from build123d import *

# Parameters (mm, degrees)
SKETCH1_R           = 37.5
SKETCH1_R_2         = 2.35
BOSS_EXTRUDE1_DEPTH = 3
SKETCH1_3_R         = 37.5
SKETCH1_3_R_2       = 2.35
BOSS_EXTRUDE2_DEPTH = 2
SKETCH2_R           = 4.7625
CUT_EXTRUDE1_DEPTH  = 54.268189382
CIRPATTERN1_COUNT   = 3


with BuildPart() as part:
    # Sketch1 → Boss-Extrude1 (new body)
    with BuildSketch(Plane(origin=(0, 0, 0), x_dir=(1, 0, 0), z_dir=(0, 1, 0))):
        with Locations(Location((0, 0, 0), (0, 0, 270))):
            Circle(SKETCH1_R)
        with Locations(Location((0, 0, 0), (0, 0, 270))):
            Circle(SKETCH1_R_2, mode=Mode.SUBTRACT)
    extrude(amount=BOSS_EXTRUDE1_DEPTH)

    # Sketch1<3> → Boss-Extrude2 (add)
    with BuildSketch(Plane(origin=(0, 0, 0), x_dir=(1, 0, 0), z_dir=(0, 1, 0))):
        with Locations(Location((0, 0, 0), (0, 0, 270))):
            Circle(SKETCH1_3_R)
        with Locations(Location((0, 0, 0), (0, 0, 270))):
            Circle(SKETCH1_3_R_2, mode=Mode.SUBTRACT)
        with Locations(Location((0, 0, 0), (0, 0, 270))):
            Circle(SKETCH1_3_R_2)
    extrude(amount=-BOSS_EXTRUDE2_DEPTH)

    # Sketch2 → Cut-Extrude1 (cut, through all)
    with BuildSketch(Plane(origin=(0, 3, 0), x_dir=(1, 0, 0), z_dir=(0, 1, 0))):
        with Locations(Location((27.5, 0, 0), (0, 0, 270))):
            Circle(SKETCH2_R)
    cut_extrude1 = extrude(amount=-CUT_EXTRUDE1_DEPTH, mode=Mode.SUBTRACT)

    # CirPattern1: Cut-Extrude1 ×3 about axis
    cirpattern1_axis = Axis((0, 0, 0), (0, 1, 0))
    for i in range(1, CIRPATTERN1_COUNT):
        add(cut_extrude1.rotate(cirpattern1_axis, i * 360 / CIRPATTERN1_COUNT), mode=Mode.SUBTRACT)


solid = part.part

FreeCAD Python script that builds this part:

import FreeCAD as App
import Part
import Sketcher
Q = App.Units.Quantity

doc = App.newDocument("Part")
body = doc.addObject("PartDesign::Body", "Body")

sketch1 = doc.addObject("Sketcher::SketchObject", "Sketch")
body.addObject(sketch1)
sketch1.AttachmentSupport = (doc.XZ_Plane, [""])
sketch1.MapMode = "FlatFace"
sketch1.addGeometry(Part.Circle(App.Vector(0, 0, 0), App.Vector(0, 0, 1), 37.5), False)
sketch1.addGeometry(Part.Circle(App.Vector(0, 0, 0), App.Vector(0, 0, 1), 2.4), False)
sketch1.addConstraint(Sketcher.Constraint("Coincident", 0, 3, -1, 1))
sketch1.addConstraint(Sketcher.Constraint("Coincident", 1, 3, -1, 1))
sketch1.addConstraint(Sketcher.Constraint("Diameter", 0, Q("75 mm")))
sketch1.addConstraint(Sketcher.Constraint("Diameter", 1, Q("4.7 mm")))
pad1 = doc.addObject("PartDesign::Pad", "Pad")
body.addObject(pad1)
pad1.Profile = sketch1
pad1.Length = 3
pad1.Reversed = True

sketch2 = doc.addObject("Sketcher::SketchObject", "Sketch001")
body.addObject(sketch2)
sketch2.AttachmentSupport = (doc.XZ_Plane, [""])
sketch2.MapMode = "FlatFace"
sketch2.addGeometry(Part.Circle(App.Vector(0, 0, 0), App.Vector(0, 0, 1), 38), False)
sketch2.addConstraint(Sketcher.Constraint("Coincident", 0, 3, -1, 1))
sketch2.addConstraint(Sketcher.Constraint("Diameter", 0, Q("75 mm")))
pad2 = doc.addObject("PartDesign::Pad", "Pad001")
body.addObject(pad2)
pad2.Profile = sketch2
pad2.Length = 2

sketch3 = doc.addObject("Sketcher::SketchObject", "Sketch002")
body.addObject(sketch3)
sketch3.AttachmentSupport = (doc.XZ_Plane, [""])
sketch3.MapMode = "FlatFace"
sketch3.AttachmentOffset = App.Placement(App.Vector(0, 0, -3), App.Rotation())
sketch3.addGeometry(Part.Circle(App.Vector(27.5, 0, 0), App.Vector(0, 0, 1), 4.8), False)
sketch3.addConstraint(Sketcher.Constraint("PointOnObject", 0, 3, -1))
sketch3.addConstraint(Sketcher.Constraint("Diameter", 0, Q("9.525 mm")))
sketch3.addConstraint(Sketcher.Constraint("DistanceX", -1, 1, 0, 3, Q("27.5 mm")))
pocket1 = doc.addObject("PartDesign::Pocket", "Pocket")
body.addObject(pocket1)
pocket1.Profile = sketch3
pocket1.Type = "ThroughAll"
pocket1.Reversed = True
doc.recompute()

polarpattern = doc.addObject("PartDesign::PolarPattern", "PolarPattern")
body.addObject(polarpattern)
polarpattern.Originals = [pocket1]
polarpattern.Axis = (doc.Y_Axis, [""])
polarpattern.Angle = 360
polarpattern.Occurrences = 3
body.Tip = polarpattern

doc.recompute()
